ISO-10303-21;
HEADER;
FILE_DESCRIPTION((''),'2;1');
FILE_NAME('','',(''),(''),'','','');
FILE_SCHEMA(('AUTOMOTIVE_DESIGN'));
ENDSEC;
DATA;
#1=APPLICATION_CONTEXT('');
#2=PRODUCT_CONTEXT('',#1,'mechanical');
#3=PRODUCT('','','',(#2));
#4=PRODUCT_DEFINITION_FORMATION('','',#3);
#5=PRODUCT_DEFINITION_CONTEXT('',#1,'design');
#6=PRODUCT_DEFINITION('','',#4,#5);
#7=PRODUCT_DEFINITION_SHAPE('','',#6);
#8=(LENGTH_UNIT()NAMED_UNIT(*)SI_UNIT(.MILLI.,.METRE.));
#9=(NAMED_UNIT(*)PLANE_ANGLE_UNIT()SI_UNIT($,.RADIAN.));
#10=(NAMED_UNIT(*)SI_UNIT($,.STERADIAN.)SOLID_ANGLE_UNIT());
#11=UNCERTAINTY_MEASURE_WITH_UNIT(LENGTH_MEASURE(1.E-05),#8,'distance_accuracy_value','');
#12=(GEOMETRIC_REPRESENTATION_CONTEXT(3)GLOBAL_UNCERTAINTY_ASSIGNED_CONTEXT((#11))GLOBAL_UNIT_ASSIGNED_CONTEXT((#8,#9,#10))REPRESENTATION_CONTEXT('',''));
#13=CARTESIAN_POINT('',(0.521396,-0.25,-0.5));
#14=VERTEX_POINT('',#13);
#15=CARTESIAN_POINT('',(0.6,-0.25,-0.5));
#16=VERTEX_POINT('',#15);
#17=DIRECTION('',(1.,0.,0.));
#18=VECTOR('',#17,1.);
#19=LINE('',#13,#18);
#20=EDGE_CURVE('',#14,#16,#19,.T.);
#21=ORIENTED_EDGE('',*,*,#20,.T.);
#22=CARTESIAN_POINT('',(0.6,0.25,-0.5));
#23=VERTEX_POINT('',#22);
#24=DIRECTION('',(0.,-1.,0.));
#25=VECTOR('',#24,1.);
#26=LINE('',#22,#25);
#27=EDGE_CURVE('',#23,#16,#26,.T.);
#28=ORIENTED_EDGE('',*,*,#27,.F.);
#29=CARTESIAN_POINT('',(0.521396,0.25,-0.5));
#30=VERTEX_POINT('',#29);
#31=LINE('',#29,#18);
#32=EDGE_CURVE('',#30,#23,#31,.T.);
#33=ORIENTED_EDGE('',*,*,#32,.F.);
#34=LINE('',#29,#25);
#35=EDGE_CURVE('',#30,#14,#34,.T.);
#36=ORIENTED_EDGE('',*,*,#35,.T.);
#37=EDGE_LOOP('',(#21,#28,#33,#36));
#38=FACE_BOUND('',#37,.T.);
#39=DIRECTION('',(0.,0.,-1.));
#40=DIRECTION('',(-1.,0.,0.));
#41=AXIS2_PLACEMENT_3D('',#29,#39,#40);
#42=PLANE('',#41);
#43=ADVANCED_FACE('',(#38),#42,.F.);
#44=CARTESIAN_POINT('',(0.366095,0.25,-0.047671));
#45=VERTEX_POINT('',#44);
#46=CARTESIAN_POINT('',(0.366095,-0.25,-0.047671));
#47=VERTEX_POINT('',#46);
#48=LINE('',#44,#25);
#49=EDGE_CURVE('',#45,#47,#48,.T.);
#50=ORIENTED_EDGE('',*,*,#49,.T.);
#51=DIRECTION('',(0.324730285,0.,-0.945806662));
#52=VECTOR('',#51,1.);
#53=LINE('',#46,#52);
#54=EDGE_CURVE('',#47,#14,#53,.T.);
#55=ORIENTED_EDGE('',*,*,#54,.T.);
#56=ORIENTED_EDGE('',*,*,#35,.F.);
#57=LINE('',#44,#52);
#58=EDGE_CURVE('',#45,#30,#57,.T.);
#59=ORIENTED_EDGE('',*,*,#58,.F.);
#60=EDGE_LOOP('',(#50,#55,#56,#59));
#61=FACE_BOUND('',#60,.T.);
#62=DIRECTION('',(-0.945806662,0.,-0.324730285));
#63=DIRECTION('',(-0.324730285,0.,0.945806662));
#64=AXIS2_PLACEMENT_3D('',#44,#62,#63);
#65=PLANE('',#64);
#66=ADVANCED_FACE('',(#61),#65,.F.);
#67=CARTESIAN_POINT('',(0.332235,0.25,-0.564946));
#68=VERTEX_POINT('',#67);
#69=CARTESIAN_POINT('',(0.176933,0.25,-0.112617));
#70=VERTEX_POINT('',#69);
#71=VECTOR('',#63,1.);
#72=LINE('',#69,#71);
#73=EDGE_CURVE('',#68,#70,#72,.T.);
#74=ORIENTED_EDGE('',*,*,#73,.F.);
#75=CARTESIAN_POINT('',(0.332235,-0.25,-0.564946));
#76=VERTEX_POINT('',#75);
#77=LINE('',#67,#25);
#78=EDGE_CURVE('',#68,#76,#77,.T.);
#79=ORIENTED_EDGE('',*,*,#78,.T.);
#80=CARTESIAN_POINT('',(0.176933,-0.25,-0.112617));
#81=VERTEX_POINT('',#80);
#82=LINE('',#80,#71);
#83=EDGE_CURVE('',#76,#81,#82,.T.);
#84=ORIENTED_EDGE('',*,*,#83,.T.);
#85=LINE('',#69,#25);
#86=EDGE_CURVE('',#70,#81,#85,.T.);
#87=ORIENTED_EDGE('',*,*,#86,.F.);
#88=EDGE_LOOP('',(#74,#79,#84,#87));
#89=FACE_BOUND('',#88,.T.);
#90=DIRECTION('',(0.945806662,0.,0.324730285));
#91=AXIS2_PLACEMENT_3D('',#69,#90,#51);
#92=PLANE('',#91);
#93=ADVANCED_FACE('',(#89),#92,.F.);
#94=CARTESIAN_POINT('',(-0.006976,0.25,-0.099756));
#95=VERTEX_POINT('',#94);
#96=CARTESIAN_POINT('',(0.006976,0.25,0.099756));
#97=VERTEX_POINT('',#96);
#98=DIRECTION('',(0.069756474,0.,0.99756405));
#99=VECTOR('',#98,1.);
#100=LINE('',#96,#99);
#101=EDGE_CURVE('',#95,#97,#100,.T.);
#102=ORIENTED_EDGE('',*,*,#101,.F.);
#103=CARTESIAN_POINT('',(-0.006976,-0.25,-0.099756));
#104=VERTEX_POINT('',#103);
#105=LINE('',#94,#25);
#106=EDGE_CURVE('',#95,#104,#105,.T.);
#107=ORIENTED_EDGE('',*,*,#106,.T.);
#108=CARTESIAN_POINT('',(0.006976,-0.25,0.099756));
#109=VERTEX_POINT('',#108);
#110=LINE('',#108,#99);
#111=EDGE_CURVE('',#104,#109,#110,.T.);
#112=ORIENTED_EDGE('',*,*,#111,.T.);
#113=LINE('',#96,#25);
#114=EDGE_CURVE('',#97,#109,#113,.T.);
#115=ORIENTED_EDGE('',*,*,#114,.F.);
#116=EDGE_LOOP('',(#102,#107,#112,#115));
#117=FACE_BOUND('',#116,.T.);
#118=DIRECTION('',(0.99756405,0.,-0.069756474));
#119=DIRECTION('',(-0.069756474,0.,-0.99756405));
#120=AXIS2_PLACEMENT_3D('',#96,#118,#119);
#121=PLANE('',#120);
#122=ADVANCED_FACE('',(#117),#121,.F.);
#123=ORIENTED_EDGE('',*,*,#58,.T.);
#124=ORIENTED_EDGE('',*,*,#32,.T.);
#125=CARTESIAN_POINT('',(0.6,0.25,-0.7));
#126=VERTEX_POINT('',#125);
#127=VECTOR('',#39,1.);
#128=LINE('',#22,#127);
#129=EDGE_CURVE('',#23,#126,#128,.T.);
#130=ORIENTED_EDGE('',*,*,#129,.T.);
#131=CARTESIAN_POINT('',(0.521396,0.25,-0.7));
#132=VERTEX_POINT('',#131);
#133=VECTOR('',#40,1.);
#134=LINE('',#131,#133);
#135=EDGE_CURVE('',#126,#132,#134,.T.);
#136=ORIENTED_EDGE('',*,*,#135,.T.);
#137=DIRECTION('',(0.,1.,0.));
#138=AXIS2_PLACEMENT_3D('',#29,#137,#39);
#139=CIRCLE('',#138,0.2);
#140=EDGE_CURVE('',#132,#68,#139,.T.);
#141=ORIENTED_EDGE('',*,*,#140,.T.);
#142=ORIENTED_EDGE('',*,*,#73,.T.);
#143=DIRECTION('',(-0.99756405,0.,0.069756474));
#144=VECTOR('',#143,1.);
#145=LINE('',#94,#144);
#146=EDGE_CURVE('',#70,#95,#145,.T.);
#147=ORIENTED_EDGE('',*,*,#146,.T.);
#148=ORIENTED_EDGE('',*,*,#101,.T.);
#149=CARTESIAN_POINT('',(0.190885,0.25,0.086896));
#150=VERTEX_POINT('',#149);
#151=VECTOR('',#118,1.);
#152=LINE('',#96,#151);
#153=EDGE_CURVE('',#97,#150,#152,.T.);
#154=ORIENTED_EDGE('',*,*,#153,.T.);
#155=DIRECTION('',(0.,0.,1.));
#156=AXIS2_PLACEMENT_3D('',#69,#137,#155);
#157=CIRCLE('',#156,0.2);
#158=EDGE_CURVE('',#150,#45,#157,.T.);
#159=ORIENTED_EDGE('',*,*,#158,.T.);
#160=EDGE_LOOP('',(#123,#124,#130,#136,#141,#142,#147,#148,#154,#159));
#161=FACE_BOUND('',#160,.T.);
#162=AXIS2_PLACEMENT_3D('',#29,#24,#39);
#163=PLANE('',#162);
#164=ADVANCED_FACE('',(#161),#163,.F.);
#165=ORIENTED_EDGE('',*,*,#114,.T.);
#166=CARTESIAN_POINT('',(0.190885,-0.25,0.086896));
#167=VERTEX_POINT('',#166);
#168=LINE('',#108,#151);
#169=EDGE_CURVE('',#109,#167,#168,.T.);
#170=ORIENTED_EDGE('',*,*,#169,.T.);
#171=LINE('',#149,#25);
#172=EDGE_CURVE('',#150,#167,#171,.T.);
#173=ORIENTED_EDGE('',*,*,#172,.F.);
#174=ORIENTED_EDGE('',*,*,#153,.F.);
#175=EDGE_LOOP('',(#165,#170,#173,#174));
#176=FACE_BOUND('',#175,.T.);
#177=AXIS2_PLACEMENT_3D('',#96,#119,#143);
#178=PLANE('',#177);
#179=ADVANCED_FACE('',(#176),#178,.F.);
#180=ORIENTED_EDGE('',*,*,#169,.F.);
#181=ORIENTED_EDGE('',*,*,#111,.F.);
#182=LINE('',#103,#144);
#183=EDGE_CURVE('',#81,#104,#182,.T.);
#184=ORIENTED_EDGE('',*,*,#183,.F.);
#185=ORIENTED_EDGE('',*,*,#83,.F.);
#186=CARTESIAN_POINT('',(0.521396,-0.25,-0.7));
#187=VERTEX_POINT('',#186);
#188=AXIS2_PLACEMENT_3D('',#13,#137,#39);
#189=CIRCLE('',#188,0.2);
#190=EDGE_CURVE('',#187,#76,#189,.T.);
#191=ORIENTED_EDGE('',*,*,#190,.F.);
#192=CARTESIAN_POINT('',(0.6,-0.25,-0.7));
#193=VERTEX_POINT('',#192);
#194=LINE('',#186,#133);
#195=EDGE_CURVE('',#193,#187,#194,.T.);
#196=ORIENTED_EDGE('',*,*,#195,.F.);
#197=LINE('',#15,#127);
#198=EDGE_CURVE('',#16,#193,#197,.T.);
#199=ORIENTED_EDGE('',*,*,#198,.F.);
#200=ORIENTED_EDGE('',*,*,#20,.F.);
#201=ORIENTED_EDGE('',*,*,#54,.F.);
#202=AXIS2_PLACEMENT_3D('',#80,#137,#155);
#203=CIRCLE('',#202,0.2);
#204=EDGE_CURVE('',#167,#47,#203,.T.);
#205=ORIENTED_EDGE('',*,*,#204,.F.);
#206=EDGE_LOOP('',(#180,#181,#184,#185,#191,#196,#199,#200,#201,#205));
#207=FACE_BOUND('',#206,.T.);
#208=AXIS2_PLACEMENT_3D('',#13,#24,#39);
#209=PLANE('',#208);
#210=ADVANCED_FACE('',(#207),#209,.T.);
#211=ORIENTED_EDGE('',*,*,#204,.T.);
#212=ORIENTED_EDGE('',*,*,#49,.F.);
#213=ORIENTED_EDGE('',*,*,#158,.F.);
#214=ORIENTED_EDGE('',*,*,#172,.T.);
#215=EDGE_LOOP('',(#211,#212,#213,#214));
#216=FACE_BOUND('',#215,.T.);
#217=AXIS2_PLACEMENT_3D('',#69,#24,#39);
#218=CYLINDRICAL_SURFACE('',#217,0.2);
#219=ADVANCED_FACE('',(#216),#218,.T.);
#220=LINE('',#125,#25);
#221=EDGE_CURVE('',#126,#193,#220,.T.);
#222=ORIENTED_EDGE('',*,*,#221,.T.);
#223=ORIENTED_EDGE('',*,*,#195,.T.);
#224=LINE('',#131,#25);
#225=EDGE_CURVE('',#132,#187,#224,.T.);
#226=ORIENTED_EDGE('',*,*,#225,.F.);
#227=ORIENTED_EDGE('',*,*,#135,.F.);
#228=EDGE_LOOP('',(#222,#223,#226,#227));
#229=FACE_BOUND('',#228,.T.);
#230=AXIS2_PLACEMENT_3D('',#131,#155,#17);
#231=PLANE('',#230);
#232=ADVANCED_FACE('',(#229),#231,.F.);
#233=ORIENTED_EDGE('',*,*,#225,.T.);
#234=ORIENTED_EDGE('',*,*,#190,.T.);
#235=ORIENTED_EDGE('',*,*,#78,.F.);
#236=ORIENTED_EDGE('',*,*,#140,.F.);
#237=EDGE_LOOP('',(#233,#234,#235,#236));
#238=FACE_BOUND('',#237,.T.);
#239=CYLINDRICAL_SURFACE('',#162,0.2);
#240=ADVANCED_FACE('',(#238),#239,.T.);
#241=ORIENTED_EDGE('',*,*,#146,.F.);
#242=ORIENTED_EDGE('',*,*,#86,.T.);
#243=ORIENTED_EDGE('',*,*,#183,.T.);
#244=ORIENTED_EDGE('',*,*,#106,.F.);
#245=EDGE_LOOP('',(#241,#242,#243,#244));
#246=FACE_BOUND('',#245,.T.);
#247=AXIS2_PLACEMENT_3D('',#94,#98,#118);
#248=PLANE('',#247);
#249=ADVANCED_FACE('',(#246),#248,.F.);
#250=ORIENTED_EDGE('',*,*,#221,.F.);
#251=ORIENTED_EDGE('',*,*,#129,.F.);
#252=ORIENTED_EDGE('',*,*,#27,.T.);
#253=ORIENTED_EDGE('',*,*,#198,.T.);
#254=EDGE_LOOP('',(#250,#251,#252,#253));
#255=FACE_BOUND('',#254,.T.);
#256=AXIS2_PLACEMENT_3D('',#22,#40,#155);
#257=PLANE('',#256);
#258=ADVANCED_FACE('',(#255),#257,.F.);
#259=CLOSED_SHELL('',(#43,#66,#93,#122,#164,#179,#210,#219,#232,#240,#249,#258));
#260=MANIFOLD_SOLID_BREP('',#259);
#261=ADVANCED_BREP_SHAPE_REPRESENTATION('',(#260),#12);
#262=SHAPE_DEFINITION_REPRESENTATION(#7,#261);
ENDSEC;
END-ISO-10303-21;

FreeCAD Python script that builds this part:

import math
import FreeCAD as App
import Part
import Sketcher
Q = App.Units.Quantity

doc = App.newDocument("Part")
params = doc.addObject("Spreadsheet::Sheet", "Params")
for row, (alias, value) in enumerate([
    ("sketch1_radius", "0.2 mm"),
    ("pad1_length", "0.5 mm"),
], start=1):
    params.set(f"A{row}", alias)
    params.set(f"B{row}", "=" + value)
    params.setAlias(f"B{row}", alias)

body = doc.addObject("PartDesign::Body", "Body")

# Sketch on XZ plane
sketch1 = body.newObject("Sketcher::SketchObject", "Sketch")
sketch1.AttachmentSupport = (doc.getObject("XZ_Plane"), [""])
sketch1.MapMode = "FlatFace"
sketch1.addGeometry(Part.LineSegment(App.Vector(0.01, 0.1, 0), App.Vector(0.19, 0.09, 0)), False)
sketch1.addGeometry(Part.ArcOfCircle(Part.Circle(App.Vector(0.18, -0.11, 0), App.Vector(0, 0, 1), 0.2), math.radians(19), math.radians(86)), False)
sketch1.addGeometry(Part.LineSegment(App.Vector(0.37, -0.05, 0), App.Vector(0.52, -0.5, 0)), False)
sketch1.addGeometry(Part.LineSegment(App.Vector(0.52, -0.5, 0), App.Vector(0.6, -0.5, 0)), False)
sketch1.addGeometry(Part.LineSegment(App.Vector(0.6, -0.5, 0), App.Vector(0.6, -0.7, 0)), False)
sketch1.addGeometry(Part.LineSegment(App.Vector(0.6, -0.7, 0), App.Vector(0.52, -0.7, 0)), False)
sketch1.addGeometry(Part.ArcOfCircle(Part.Circle(App.Vector(0.52, -0.5, 0), App.Vector(0, 0, 1), 0.2), math.radians(-161), math.radians(-90)), False)
sketch1.addGeometry(Part.LineSegment(App.Vector(0.33, -0.56, 0), App.Vector(0.18, -0.11, 0)), False)
sketch1.addGeometry(Part.LineSegment(App.Vector(0.18, -0.11, 0), App.Vector(-0.01, -0.1, 0)), False)
sketch1.addGeometry(Part.LineSegment(App.Vector(-0.01, -0.1, 0), App.Vector(0.01, 0.1, 0)), False)
sketch1.addConstraint(Sketcher.Constraint("Tangent", 0, 2, 1, 2))
sketch1.addConstraint(Sketcher.Constraint("Tangent", 1, 1, 2, 1))
sketch1.addConstraint(Sketcher.Constraint("Coincident", 2, 2, 3, 1))
sketch1.addConstraint(Sketcher.Constraint("Coincident", 3, 2, 4, 1))
sketch1.addConstraint(Sketcher.Constraint("Coincident", 4, 2, 5, 1))
sketch1.addConstraint(Sketcher.Constraint("Tangent", 5, 2, 6, 2))
sketch1.addConstraint(Sketcher.Constraint("Tangent", 6, 1, 7, 1))
sketch1.addConstraint(Sketcher.Constraint("Coincident", 7, 2, 8, 1))
sketch1.addConstraint(Sketcher.Constraint("Coincident", 8, 2, 9, 1))
sketch1.addConstraint(Sketcher.Constraint("Coincident", 9, 2, 0, 1))
sketch1.addConstraint(Sketcher.Constraint("Horizontal", 3))
sketch1.addConstraint(Sketcher.Constraint("Vertical", 4))
sketch1.addConstraint(Sketcher.Constraint("Horizontal", 5))
sketch1.addConstraint(Sketcher.Constraint("Coincident", 2, 2, 6, 3))
sketch1.addConstraint(Sketcher.Constraint("Coincident", 7, 2, 1, 3))
sketch1.addConstraint(Sketcher.Constraint("Equal", 1, 6))
sketch1.addConstraint(Sketcher.Constraint("Symmetric", 8, 2, 9, 2, -1, 1))
sketch1.addConstraint(Sketcher.Constraint("Parallel", 0, 8))
sketch1.addConstraint(Sketcher.Constraint("Perpendicular", 8, 9))
sketch1.addConstraint(Sketcher.Constraint("Radius", 1, Q("0.2 mm")))
sketch1.addConstraint(Sketcher.Constraint("Angle", 0, Q("-4 deg")))
sketch1.addConstraint(Sketcher.Constraint("DistanceY", 6, 3, -1, 1, Q("0.5 mm")))
sketch1.addConstraint(Sketcher.Constraint("DistanceX", -1, 1, 3, 2, Q("0.6 mm")))
sketch1.addConstraint(Sketcher.Constraint("DistanceX", 1, 1, 6, 3, Q("0.155301 mm")))
sketch1.addConstraint(Sketcher.Constraint("Distance", 0, Q("0.184358 mm")))
sketch1.setExpression("Constraints[19]", "Params.sketch1_radius")
pad1 = body.newObject("PartDesign::Pad", "Pad")
pad1.Profile = sketch1
pad1.setExpression("Length", "Params.pad1_length")
pad1.Midplane = True

doc.recompute()
